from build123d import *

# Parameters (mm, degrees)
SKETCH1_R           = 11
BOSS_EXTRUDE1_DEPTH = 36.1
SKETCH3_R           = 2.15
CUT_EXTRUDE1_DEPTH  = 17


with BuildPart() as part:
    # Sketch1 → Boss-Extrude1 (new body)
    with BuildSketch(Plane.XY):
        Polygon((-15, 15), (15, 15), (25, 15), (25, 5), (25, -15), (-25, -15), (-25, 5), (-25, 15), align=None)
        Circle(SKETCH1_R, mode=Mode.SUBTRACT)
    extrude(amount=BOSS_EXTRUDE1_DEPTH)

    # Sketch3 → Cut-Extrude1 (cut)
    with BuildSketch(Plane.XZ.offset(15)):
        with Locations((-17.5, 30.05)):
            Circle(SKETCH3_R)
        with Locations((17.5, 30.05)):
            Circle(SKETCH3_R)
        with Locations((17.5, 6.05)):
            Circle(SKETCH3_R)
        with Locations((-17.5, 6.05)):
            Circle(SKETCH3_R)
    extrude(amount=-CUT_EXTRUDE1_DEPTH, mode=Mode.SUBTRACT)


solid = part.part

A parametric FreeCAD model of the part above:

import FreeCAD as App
import Part
import Sketcher
Q = App.Units.Quantity

doc = App.newDocument("Part")
body = doc.addObject("PartDesign::Body", "Body")

sketch1 = body.newObject("Sketcher::SketchObject", "Sketch")
sketch1.AttachmentSupport = (doc.getObject("XY_Plane"), [""])
sketch1.MapMode = "FlatFace"
sketch1.addGeometry([
    Part.LineSegment(App.Vector(25, 15, 0), App.Vector(-25, 15, 0)),
    Part.LineSegment(App.Vector(-25, 15, 0), App.Vector(-25, -15, 0)),
    Part.LineSegment(App.Vector(-25, -15, 0), App.Vector(25, -15, 0)),
    Part.LineSegment(App.Vector(25, -15, 0), App.Vector(25, 15, 0)),
    Part.Circle(App.Vector(0, 0, 0), App.Vector(0, 0, 1), 11),
], False)
sketch1.addConstraint([
    Sketcher.Constraint("Coincident", 0, 2, 1, 1),
    Sketcher.Constraint("Coincident", 1, 2, 2, 1),
    Sketcher.Constraint("Coincident", 2, 2, 3, 1),
    Sketcher.Constraint("Coincident", 3, 2, 0, 1),
    Sketcher.Constraint("Horizontal", 0),
    Sketcher.Constraint("Vertical", 1),
    Sketcher.Constraint("Horizontal", 2),
    Sketcher.Constraint("Vertical", 3),
    Sketcher.Constraint("Coincident", 4, 3, -1, 1),
    Sketcher.Constraint("Symmetric", 0, 2, 2, 2, -1, 1),
    Sketcher.Constraint("Diameter", 4, Q("22 mm")),
    Sketcher.Constraint("DistanceX", 0, 2, 0, 1, Q("50 mm")),
    Sketcher.Constraint("DistanceY", 1, 2, 1, 1, Q("30 mm")),
])
pad1 = body.newObject("PartDesign::Pad", "Pad")
pad1.Profile = sketch1
pad1.Length = 36.1

sketch2 = body.newObject("Sketcher::SketchObject", "Sketch001")
sketch2.AttachmentSupport = (doc.getObject("XZ_Plane"), [""])
sketch2.MapMode = "FlatFace"
sketch2.AttachmentOffset = App.Placement(App.Vector(0, 0, 15), App.Rotation())
sketch2.addGeometry([
    Part.Circle(App.Vector(-17.5, 30.1, 0), App.Vector(0, 0, 1), 2.1),
    Part.Circle(App.Vector(17.5, 30.1, 0), App.Vector(0, 0, 1), 2.1),
    Part.Circle(App.Vector(17.5, 6, 0), App.Vector(0, 0, 1), 2.1),
    Part.Circle(App.Vector(-17.5, 6, 0), App.Vector(0, 0, 1), 2.1),
], False)
sketch2.addConstraint([
    Sketcher.Constraint("Equal", 0, 1),
    Sketcher.Constraint("Equal", 1, 2),
    Sketcher.Constraint("Equal", 2, 3),
    Sketcher.Constraint("Symmetric", 0, 3, 1, 3, -2),
    Sketcher.Constraint("Symmetric", 2, 3, 3, 3, -2),
    Sketcher.Constraint("Vertical", 1, 3, 2, 3),
    Sketcher.Constraint("Diameter", 0, Q("4.3 mm")),
    Sketcher.Constraint("DistanceX", 0, 3, 1, 3, Q("35 mm")),
    Sketcher.Constraint("DistanceY", 2, 3, 1, 3, Q("24 mm")),
    Sketcher.Constraint("DistanceY", -1, 1, 0, 3, Q("30.05 mm")),
])
pocket1 = body.newObject("PartDesign::Pocket", "Pocket")
pocket1.Profile = sketch2
pocket1.Length = 17

doc.recompute()
